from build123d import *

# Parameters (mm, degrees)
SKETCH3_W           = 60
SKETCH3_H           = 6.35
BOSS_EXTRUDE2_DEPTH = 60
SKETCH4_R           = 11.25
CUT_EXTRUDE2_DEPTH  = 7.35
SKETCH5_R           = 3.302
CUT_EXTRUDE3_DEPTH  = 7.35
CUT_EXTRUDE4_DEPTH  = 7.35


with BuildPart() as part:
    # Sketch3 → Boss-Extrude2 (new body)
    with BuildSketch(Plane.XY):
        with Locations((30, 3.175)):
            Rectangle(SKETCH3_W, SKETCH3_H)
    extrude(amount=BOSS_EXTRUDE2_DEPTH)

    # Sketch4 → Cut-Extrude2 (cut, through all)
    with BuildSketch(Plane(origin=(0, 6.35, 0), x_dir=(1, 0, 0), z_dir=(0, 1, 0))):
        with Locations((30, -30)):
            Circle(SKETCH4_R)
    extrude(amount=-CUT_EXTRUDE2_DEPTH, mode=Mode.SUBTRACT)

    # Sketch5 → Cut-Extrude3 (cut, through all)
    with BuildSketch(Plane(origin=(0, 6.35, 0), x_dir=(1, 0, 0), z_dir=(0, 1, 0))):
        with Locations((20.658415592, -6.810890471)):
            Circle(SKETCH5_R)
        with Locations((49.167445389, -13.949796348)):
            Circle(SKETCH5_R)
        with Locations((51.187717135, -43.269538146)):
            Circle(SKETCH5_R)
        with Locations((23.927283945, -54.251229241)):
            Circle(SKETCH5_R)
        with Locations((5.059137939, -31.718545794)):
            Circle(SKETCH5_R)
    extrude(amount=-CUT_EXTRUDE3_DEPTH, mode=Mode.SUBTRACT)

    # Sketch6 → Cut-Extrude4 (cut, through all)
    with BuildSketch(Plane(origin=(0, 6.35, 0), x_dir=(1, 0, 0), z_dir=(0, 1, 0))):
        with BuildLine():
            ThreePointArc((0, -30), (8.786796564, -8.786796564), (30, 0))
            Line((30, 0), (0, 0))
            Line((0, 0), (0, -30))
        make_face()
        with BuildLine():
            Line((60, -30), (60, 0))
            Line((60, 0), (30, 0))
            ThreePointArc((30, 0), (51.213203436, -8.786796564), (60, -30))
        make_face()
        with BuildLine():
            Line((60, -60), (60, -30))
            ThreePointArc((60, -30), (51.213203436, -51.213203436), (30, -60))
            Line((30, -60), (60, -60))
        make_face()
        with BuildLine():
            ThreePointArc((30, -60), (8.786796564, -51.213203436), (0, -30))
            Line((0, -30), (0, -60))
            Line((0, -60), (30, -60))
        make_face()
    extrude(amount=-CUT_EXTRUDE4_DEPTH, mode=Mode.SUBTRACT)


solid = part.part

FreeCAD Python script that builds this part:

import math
import FreeCAD as App
import Part
import Sketcher
from FreeCAD import Vector
Q = App.Units.Quantity


def add_polygon(sketch, points):
    """Adds a closed chain of lines whose ends are joined by coincident constraints."""
    first, n = sketch.GeometryCount, len(points)
    for a, b in zip(points, points[1:] + points[:1]):
        sketch.addGeometry(Part.LineSegment(App.Vector(*a, 0), App.Vector(*b, 0)), False)
    for i in range(n):
        sketch.addConstraint(Sketcher.Constraint("Coincident", first + i, 2, first + (i + 1) % n, 1))

doc = App.newDocument("Part")
params = doc.addObject("Spreadsheet::Sheet", "Params")
for row, (alias, value) in enumerate([
    ("sketch1_width", "60 mm"),
    ("sketch1_height", "6.35 mm"),
    ("pad1_length", "60 mm"),
    ("sketch2_diameter", "22.5 mm"),
    ("sketch4_radius", "30 mm"),
], start=1):
    params.set(f"A{row}", alias)
    params.set(f"B{row}", "=" + value)
    params.setAlias(f"B{row}", alias)

body = doc.addObject("PartDesign::Body", "Body")

sketch1 = body.newObject("Sketcher::SketchObject", "Sketch")
sketch1.AttachmentSupport = (doc.getObject("XY_Plane"), [""])
sketch1.MapMode = "FlatFace"
add_polygon(sketch1, [(0, 6), (0, 0), (60, 0), (60, 6)])
sketch1.addConstraint([
    Sketcher.Constraint("Vertical", 0),
    Sketcher.Constraint("Horizontal", 1),
    Sketcher.Constraint("Vertical", 2),
    Sketcher.Constraint("Horizontal", 3),
    Sketcher.Constraint("Coincident", 0, 2, -1, 1),
    Sketcher.Constraint("DistanceX", 1, 1, 1, 2, Q("60 mm")),
    Sketcher.Constraint("DistanceY", 0, 2, 0, 1, Q("6.35 mm")),
])
sketch1.setExpression("Constraints[9]", "Params.sketch1_width")
sketch1.setExpression("Constraints[10]", "Params.sketch1_height")
pad1 = body.newObject("PartDesign::Pad", "Pad")
pad1.Profile = sketch1
pad1.setExpression("Length", "Params.pad1_length")

sketch2 = body.newObject("Sketcher::SketchObject", "Sketch001")
sketch2.AttachmentSupport = (doc.getObject("XZ_Plane"), [""])
sketch2.MapMode = "FlatFace"
sketch2.AttachmentOffset = App.Placement(Vector(0, 0, -6.35), App.Rotation())
sketch2.addGeometry(Part.Circle(Vector(30, 30, 0), Vector(0, 0, 1), 11), False)
sketch2.addConstraint([
    Sketcher.Constraint("Diameter", 0, Q("22.5 mm")),
    Sketcher.Constraint("DistanceX", -1, 1, 0, 3, Q("30 mm")),
    Sketcher.Constraint("DistanceY", -1, 1, 0, 3, Q("30 mm")),
])
sketch2.setExpression("Constraints[0]", "Params.sketch2_diameter")
pocket1 = body.newObject("PartDesign::Pocket", "Pocket")
pocket1.Profile = sketch2
pocket1.Type = "ThroughAll"
pocket1.Reversed = True

sketch3 = body.newObject("Sketcher::SketchObject", "Sketch002")
sketch3.AttachmentSupport = (doc.getObject("XZ_Plane"), [""])
sketch3.MapMode = "FlatFace"
sketch3.AttachmentOffset = App.Placement(Vector(0, 0, -6.35), App.Rotation())
sketch3.addGeometry([
    Part.Circle(Vector(20.7, 6.8, 0), Vector(0, 0, 1), 3.3),
    Part.Circle(Vector(49.2, 13.9, 0), Vector(0, 0, 1), 3.3),
    Part.Circle(Vector(51.2, 43.3, 0), Vector(0, 0, 1), 3.3),
    Part.Circle(Vector(23.9, 54.3, 0), Vector(0, 0, 1), 3.3),
    Part.Circle(Vector(5.1, 31.7, 0), Vector(0, 0, 1), 3.3),
], False)
sketch3.addConstraint([
    Sketcher.Constraint("Equal", 0, 1),
    Sketcher.Constraint("Equal", 1, 2),
    Sketcher.Constraint("Equal", 2, 3),
    Sketcher.Constraint("Equal", 3, 4),
    Sketcher.Constraint("Diameter", 0, Q("6.604 mm")),
    Sketcher.Constraint("DistanceX", 0, 3, 2, 3, Q("30.529302 mm")),
    Sketcher.Constraint("DistanceY", -1, 1, 0, 3, Q("6.81089 mm")),
    Sketcher.Constraint("DistanceY", -1, 1, 2, 3, Q("43.269538 mm")),
    Sketcher.Constraint("DistanceY", -1, 1, 3, 3, Q("54.251229 mm")),
    Sketcher.Constraint("DistanceX", 0, 3, 1, 3, Q("28.50903 mm")),
    Sketcher.Constraint("DistanceY", 1, 3, 2, 3, Q("29.319742 mm")),
    Sketcher.Constraint("DistanceX", 0, 3, 3, 3, Q("3.268868 mm")),
    Sketcher.Constraint("DistanceX", 4, 3, 2, 3, Q("46.128579 mm")),
    Sketcher.Constraint("DistanceY", 1, 3, 4, 3, Q("17.768749 mm")),
    Sketcher.Constraint("DistanceX", -1, 1, 0, 3, Q("20.658416 mm")),
])
pocket2 = body.newObject("PartDesign::Pocket", "Pocket001")
pocket2.Profile = sketch3
pocket2.Type = "ThroughAll"
pocket2.Reversed = True

sketch4 = body.newObject("Sketcher::SketchObject", "Sketch003")
sketch4.AttachmentSupport = (doc.getObject("XZ_Plane"), [""])
sketch4.MapMode = "FlatFace"
sketch4.AttachmentOffset = App.Placement(Vector(0, 0, -6.35), App.Rotation())
sketch4.addGeometry([
    Part.ArcOfCircle(Part.Circle(Vector(30, 30, 0), Vector(0, 0, 1), 30), math.radians(180), math.radians(270)),
    Part.LineSegment(Vector(30, 0, 0), Vector(0, 0, 0)),
    Part.LineSegment(Vector(0, 0, 0), Vector(0, 30, 0)),
    Part.LineSegment(Vector(60, 30, 0), Vector(60, 0, 0)),
    Part.LineSegment(Vector(60, 0, 0), Vector(30, 0, 0)),
    Part.ArcOfCircle(Part.Circle(Vector(30, 30, 0), Vector(0, 0, 1), 30), math.radians(-90), math.radians(0)),
    Part.LineSegment(Vector(60, 60, 0), Vector(60, 30, 0)),
    Part.ArcOfCircle(Part.Circle(Vector(30, 30, 0), Vector(0, 0, 1), 30), math.radians(0), math.radians(90)),
    Part.LineSegment(Vector(30, 60, 0), Vector(60, 60, 0)),
    Part.ArcOfCircle(Part.Circle(Vector(30, 30, 0), Vector(0, 0, 1), 30), math.radians(90), math.radians(180)),
    Part.LineSegment(Vector(0, 30, 0), Vector(0, 60, 0)),
    Part.LineSegment(Vector(0, 60, 0), Vector(30, 60, 0)),
], False)
sketch4.addConstraint([
    Sketcher.Constraint("Tangent", 0, 2, 1, 1),
    Sketcher.Constraint("Coincident", 1, 2, 2, 1),
    Sketcher.Constraint("Tangent", 2, 2, 0, 1),
    Sketcher.Constraint("Coincident", 3, 2, 4, 1),
    Sketcher.Constraint("Tangent", 4, 2, 5, 1),
    Sketcher.Constraint("Tangent", 5, 2, 3, 1),
    Sketcher.Constraint("Tangent", 6, 2, 7, 1),
    Sketcher.Constraint("Tangent", 7, 2, 8, 1),
    Sketcher.Constraint("Coincident", 8, 2, 6, 1),
    Sketcher.Constraint("Tangent", 9, 2, 10, 1),
    Sketcher.Constraint("Coincident", 10, 2, 11, 1),
    Sketcher.Constraint("Tangent", 11, 2, 9, 1),
    Sketcher.Constraint("Horizontal", 1),
    Sketcher.Constraint("Vertical", 2),
    Sketcher.Constraint("Vertical", 3),
    Sketcher.Constraint("Horizontal", 4),
    Sketcher.Constraint("Vertical", 6),
    Sketcher.Constraint("Horizontal", 8),
    Sketcher.Constraint("Vertical", 10),
    Sketcher.Constraint("Horizontal", 11),
    Sketcher.Constraint("Coincident", 1, 2, -1, 1),
    Sketcher.Constraint("Coincident", 5, 3, 0, 3),
    Sketcher.Constraint("Coincident", 7, 3, 0, 3),
    Sketcher.Constraint("Coincident", 9, 3, 0, 3),
    Sketcher.Constraint("Equal", 0, 5),
    Sketcher.Constraint("Equal", 5, 7),
    Sketcher.Constraint("Equal", 7, 9),
    Sketcher.Constraint("Radius", 0, Q("30 mm")),
])
sketch4.setExpression("Constraints[27]", "Params.sketch4_radius")
pocket3 = body.newObject("PartDesign::Pocket", "Pocket002")
pocket3.Profile = sketch4
pocket3.Type = "ThroughAll"
pocket3.Reversed = True

doc.recompute()
